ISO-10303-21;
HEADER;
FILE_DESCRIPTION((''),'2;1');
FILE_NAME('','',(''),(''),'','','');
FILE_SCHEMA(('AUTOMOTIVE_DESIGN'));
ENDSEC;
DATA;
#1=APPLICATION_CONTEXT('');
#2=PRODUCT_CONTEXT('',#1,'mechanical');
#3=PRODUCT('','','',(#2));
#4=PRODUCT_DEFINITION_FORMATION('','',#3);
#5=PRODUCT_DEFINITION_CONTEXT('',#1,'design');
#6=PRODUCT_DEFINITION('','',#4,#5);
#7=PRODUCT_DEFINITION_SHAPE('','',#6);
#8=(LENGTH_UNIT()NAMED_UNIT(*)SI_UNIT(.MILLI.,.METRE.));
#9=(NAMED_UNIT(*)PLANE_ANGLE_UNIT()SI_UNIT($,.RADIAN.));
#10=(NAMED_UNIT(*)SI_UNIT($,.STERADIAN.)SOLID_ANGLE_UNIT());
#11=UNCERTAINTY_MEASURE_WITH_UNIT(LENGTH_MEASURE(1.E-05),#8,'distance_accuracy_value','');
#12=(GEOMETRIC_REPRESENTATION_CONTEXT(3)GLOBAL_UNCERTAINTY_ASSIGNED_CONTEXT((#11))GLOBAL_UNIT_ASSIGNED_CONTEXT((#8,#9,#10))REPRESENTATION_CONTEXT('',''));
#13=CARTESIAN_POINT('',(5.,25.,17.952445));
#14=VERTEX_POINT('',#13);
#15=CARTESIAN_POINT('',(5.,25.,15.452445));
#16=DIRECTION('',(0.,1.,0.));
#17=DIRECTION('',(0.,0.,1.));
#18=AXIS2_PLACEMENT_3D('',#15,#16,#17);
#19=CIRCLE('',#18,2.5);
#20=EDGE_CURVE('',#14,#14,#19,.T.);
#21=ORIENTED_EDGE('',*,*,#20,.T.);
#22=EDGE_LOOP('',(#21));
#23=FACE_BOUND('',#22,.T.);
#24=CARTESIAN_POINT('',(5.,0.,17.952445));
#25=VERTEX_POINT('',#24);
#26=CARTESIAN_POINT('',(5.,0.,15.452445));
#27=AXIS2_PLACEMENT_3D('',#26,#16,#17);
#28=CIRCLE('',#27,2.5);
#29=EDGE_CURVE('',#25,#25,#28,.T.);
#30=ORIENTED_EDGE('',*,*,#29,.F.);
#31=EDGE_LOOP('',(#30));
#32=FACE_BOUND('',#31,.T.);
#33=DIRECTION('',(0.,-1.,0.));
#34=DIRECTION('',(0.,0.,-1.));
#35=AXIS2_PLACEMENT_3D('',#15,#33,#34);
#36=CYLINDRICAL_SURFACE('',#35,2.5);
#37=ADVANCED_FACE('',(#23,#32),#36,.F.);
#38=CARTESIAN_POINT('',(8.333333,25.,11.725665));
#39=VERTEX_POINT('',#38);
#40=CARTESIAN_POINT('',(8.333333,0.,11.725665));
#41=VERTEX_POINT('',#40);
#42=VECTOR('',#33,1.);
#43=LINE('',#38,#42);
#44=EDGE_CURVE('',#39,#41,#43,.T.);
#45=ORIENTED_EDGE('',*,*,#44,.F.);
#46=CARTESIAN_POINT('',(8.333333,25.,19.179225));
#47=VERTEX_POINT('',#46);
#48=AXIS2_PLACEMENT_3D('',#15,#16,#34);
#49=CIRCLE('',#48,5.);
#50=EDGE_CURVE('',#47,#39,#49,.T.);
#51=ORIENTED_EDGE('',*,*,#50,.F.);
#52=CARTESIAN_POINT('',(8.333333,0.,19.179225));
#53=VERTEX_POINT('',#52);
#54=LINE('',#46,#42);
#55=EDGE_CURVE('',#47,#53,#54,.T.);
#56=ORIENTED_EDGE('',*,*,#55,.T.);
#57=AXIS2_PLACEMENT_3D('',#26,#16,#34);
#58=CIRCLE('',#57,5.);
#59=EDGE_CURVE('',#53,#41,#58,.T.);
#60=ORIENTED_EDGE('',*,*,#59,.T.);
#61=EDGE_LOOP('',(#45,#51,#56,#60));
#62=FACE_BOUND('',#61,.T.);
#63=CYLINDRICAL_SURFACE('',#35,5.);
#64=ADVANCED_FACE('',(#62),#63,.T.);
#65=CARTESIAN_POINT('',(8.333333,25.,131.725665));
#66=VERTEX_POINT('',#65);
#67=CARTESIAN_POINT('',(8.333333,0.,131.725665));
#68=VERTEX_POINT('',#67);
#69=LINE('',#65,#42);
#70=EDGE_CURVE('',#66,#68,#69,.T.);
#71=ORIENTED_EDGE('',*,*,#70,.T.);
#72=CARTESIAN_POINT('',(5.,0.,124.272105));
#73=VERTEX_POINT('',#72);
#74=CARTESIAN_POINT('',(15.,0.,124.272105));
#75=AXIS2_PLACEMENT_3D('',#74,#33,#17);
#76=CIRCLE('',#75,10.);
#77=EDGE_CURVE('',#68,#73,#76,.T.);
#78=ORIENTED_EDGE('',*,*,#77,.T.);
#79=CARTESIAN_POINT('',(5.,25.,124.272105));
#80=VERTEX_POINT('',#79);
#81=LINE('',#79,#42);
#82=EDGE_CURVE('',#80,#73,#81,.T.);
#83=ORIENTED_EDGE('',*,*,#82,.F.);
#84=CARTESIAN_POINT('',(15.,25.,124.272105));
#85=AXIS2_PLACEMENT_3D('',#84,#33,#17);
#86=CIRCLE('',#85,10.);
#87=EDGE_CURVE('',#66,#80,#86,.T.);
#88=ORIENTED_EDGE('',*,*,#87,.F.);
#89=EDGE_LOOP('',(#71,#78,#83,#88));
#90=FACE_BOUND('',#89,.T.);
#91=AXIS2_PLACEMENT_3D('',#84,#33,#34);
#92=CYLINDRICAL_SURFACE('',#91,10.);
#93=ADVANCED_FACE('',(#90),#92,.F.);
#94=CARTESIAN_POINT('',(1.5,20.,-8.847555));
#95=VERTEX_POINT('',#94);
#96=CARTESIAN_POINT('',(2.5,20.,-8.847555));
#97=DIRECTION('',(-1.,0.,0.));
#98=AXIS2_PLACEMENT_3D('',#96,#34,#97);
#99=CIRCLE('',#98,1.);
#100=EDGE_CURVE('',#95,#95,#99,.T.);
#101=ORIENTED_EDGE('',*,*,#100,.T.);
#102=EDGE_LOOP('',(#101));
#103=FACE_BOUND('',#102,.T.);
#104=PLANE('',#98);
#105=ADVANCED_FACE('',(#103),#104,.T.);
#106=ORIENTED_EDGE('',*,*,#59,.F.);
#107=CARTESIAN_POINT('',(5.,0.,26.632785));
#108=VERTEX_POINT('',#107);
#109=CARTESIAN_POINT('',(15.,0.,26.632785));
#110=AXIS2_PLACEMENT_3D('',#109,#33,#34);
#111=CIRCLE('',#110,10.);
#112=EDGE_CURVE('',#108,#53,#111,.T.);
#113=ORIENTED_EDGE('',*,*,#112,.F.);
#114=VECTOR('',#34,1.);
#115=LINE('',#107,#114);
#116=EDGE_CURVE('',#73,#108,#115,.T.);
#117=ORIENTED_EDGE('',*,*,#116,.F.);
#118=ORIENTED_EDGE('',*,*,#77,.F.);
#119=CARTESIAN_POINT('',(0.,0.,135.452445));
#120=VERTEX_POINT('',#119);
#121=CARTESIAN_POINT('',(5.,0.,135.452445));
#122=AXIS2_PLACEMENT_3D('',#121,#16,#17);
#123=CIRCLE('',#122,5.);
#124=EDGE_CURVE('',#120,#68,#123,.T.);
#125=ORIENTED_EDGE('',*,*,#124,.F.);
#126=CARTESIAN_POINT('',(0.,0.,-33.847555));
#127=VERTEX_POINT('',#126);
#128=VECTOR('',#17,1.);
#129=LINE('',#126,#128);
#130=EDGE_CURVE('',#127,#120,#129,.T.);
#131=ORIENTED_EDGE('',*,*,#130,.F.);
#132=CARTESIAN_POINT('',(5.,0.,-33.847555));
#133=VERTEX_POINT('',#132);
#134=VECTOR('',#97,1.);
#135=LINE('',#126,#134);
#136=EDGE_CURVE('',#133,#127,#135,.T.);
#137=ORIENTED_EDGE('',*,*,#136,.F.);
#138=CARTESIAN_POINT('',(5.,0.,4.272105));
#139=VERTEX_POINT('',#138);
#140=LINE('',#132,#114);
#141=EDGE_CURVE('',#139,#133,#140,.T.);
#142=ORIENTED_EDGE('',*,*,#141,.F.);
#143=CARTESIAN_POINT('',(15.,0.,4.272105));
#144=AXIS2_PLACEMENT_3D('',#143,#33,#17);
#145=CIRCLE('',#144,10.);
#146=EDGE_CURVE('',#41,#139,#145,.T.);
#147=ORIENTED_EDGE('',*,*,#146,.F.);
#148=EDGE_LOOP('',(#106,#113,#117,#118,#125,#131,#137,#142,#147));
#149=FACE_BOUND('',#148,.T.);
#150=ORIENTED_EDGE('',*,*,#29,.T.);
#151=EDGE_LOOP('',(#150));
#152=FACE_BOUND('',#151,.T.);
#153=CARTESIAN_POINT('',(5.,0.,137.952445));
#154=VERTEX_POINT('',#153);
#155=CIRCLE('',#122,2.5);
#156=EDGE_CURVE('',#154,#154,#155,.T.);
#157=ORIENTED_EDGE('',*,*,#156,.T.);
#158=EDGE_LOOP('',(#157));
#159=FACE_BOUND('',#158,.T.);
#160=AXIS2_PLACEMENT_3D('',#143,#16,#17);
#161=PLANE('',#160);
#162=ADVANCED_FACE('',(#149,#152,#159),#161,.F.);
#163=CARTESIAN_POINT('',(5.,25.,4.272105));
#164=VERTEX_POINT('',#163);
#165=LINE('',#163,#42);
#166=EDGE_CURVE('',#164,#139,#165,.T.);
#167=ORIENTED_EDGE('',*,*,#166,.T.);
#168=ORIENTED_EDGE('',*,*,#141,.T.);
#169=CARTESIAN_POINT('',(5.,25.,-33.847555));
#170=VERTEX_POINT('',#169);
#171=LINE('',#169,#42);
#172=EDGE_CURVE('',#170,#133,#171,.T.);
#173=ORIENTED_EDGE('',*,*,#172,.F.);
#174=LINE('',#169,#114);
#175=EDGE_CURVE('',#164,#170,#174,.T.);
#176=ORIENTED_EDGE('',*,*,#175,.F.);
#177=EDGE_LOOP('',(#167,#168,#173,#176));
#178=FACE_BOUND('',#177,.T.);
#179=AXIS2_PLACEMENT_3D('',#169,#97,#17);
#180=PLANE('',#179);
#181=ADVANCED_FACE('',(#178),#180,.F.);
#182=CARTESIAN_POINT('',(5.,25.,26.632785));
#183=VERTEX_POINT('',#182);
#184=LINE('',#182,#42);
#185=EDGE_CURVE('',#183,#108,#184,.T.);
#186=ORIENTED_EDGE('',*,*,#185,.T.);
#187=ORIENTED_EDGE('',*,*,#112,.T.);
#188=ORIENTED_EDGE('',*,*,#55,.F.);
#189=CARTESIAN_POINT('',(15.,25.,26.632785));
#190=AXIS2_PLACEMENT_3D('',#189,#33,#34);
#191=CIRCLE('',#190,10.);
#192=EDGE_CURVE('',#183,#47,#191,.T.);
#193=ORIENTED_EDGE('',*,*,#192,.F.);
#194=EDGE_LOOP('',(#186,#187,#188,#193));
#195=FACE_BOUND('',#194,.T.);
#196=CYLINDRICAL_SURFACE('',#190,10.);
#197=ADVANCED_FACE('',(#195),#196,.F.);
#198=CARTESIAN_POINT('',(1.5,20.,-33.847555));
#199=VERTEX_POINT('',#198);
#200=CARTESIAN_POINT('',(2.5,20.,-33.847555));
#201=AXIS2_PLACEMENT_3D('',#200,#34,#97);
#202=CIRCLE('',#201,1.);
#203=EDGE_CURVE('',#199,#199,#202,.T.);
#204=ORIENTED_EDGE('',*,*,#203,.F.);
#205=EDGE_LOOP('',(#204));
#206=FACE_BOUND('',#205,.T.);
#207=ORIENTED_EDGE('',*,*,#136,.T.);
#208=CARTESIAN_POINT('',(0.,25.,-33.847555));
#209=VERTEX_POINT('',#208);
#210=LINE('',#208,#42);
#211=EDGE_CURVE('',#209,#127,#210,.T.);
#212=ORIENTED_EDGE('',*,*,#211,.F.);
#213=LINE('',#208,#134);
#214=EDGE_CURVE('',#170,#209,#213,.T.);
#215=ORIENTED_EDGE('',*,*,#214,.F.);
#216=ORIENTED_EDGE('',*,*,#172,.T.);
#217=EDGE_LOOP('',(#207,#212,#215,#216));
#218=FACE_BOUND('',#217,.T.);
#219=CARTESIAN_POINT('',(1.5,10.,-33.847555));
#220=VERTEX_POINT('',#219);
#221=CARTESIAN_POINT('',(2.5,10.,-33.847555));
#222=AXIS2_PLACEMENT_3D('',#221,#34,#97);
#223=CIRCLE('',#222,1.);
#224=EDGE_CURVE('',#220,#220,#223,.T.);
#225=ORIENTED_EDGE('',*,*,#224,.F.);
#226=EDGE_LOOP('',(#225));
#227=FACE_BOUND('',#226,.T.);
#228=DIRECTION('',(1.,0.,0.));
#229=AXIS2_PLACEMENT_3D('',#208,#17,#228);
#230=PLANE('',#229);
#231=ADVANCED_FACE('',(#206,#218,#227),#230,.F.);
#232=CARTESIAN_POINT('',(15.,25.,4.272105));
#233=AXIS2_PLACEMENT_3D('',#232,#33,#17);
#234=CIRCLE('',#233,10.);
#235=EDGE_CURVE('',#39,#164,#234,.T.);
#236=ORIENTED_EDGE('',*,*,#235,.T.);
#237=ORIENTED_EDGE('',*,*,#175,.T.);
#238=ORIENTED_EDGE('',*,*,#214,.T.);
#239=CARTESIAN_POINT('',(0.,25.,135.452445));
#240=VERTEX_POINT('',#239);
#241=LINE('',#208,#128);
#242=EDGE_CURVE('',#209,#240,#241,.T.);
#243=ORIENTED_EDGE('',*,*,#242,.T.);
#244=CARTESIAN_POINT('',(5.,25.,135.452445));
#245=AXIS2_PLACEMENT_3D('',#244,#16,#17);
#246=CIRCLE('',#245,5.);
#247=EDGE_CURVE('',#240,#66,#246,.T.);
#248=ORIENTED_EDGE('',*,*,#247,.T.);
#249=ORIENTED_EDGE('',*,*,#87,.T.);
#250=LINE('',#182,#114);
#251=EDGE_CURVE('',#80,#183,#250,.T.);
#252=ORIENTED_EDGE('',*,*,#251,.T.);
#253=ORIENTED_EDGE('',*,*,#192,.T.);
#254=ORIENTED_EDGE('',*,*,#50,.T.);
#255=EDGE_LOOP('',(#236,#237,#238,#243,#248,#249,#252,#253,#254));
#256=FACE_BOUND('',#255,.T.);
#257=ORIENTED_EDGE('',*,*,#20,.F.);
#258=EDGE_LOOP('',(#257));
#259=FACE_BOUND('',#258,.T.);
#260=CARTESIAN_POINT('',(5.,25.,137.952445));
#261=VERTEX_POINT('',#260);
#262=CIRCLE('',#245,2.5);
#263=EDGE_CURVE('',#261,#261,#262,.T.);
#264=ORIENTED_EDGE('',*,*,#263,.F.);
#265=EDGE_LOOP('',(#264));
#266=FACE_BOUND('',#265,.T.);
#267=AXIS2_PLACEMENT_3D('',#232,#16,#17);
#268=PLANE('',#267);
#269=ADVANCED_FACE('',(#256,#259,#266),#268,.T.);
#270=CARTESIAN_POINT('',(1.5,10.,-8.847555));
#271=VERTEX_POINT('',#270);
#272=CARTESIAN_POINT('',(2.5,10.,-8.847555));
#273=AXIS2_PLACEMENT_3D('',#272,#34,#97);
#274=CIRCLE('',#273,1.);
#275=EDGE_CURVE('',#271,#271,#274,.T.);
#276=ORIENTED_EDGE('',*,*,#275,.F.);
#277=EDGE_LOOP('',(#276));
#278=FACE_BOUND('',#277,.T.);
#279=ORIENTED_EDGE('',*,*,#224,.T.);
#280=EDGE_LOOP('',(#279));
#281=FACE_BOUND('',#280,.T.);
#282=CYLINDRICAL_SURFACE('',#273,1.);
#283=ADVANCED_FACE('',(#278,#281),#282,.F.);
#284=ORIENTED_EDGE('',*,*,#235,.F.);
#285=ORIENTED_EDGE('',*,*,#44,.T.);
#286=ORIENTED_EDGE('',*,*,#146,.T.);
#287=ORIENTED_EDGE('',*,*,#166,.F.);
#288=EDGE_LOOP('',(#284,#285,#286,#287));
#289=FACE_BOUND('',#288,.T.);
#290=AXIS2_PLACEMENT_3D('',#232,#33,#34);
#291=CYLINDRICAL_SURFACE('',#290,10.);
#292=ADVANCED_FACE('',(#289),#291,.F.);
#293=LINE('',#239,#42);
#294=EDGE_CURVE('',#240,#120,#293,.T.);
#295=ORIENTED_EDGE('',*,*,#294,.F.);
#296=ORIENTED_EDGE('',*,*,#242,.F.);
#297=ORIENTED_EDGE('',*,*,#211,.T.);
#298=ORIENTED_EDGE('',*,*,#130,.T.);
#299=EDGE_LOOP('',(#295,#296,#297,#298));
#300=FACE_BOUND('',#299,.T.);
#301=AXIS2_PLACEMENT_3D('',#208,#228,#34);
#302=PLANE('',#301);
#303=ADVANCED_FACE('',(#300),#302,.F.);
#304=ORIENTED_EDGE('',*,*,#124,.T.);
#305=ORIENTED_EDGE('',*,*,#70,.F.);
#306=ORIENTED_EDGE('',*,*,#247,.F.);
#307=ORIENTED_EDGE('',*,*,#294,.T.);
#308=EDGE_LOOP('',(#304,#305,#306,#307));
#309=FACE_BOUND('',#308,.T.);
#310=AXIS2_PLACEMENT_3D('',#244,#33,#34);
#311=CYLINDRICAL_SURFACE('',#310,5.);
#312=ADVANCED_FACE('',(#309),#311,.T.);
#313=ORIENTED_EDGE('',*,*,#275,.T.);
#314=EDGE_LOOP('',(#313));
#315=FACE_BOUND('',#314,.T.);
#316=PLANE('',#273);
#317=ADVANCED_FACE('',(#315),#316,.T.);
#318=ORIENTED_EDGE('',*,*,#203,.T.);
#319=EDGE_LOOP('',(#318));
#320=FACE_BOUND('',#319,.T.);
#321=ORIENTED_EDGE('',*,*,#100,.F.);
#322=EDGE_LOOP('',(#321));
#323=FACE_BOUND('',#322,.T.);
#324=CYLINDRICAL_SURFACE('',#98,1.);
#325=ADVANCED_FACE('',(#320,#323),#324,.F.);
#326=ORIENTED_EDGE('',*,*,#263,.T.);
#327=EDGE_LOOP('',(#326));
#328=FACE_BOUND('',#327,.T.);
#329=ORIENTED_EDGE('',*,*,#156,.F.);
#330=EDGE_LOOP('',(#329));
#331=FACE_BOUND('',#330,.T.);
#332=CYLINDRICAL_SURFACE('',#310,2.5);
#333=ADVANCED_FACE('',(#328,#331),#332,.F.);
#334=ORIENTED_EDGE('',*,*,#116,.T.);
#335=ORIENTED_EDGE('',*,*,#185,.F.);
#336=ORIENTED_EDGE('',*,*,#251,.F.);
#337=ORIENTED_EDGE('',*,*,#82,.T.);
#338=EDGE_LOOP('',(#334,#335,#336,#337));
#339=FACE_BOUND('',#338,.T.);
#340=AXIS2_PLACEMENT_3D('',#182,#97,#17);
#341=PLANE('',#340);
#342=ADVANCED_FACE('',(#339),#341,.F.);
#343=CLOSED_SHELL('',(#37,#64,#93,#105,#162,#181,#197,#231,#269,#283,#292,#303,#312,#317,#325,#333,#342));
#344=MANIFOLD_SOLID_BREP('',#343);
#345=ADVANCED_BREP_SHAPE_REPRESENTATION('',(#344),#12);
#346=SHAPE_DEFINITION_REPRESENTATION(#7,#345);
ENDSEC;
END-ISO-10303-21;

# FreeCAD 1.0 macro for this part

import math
import FreeCAD as App
import Part
import Sketcher
from FreeCAD import Vector

doc = App.newDocument("Part")
body = doc.addObject("PartDesign::Body", "Body")

sketch1 = doc.addObject("Sketcher::SketchObject", "Sketch")
body.addObject(sketch1)
sketch1.AttachmentSupport = (doc.XZ_Plane, [""])
sketch1.MapMode = "FlatFace"
sketch1.addGeometry(Part.LineSegment(Vector(0, -33.8, 0), Vector(0, 135.5, 0)), False)
sketch1.addGeometry(Part.ArcOfCircle(Part.Circle(Vector(5, 135.5, 0), Vector(0, 0, 1), 5), math.radians(-48), math.radians(180)), False)
sketch1.addGeometry(Part.ArcOfCircle(Part.Circle(Vector(15, 124.3, 0), Vector(0, 0, 1), 10), math.radians(132), math.radians(180)), False)
sketch1.addGeometry(Part.LineSegment(Vector(5, 124.3, 0), Vector(5, 26.6, 0)), False)
sketch1.addGeometry(Part.ArcOfCircle(Part.Circle(Vector(15, 26.6, 0), Vector(0, 0, 1), 10), math.radians(180), math.radians(228)), False)
sketch1.addGeometry(Part.ArcOfCircle(Part.Circle(Vector(5, 15.5, 0), Vector(0, 0, 1), 5), math.radians(-48), math.radians(48)), False)
sketch1.addGeometry(Part.ArcOfCircle(Part.Circle(Vector(15, 4.3, 0), Vector(0, 0, 1), 10), math.radians(132), math.radians(180)), False)
sketch1.addGeometry(Part.LineSegment(Vector(5, 4.3, 0), Vector(5, -33.8, 0)), False)
sketch1.addGeometry(Part.LineSegment(Vector(5, -33.8, 0), Vector(0, -33.8, 0)), False)
sketch1.addGeometry(Part.Circle(Vector(5, 135.5, 0), Vector(0, 0, 1), 2.5), False)
sketch1.addGeometry(Part.Circle(Vector(5, 15.5, 0), Vector(0, 0, 1), 2.5), False)
sketch1.addConstraint(Sketcher.Constraint("Tangent", 0, 2, 1, 2))
sketch1.addConstraint(Sketcher.Constraint("Tangent", 1, 1, 2, 1))
sketch1.addConstraint(Sketcher.Constraint("Tangent", 2, 2, 3, 1))
sketch1.addConstraint(Sketcher.Constraint("Tangent", 3, 2, 4, 1))
sketch1.addConstraint(Sketcher.Constraint("Tangent", 4, 2, 5, 2))
sketch1.addConstraint(Sketcher.Constraint("Tangent", 5, 1, 6, 1))
sketch1.addConstraint(Sketcher.Constraint("Tangent", 6, 2, 7, 1))
sketch1.addConstraint(Sketcher.Constraint("Coincident", 7, 2, 8, 1))
sketch1.addConstraint(Sketcher.Constraint("Coincident", 8, 2, 0, 1))
sketch1.addConstraint(Sketcher.Constraint("Vertical", 0))
sketch1.addConstraint(Sketcher.Constraint("Vertical", 3))
sketch1.addConstraint(Sketcher.Constraint("Vertical", 7))
sketch1.addConstraint(Sketcher.Constraint("Horizontal", 8))
sketch1.addConstraint(Sketcher.Constraint("Coincident", 9, 3, 1, 3))
sketch1.addConstraint(Sketcher.Constraint("Coincident", 10, 3, 5, 3))
sketch1.addConstraint(Sketcher.Constraint("Equal", 2, 4))
sketch1.addConstraint(Sketcher.Constraint("Equal", 1, 5))
sketch1.addConstraint(Sketcher.Constraint("Equal", 4, 6))
sketch1.addConstraint(Sketcher.Constraint("Equal", 9, 10))
sketch1.addConstraint(Sketcher.Constraint("PointOnObject", 0, 2, -2))
sketch1.addConstraint(Sketcher.Constraint("Vertical", 1, 3, 5, 3))
sketch1.addConstraint(Sketcher.Constraint("Vertical", 4, 3, 6, 3))
sketch1.addConstraint(Sketcher.Constraint("Vertical", 10, 3, 2, 2))
sketch1.addConstraint(Sketcher.Constraint("Diameter", 9, 5.0))
sketch1.addConstraint(Sketcher.Constraint("Radius", 1, 5.0))
sketch1.addConstraint(Sketcher.Constraint("Radius", 2, 10.0))
sketch1.addConstraint(Sketcher.Constraint("DistanceY", 0, 1, 0, 2, 169.3))
sketch1.addConstraint(Sketcher.Constraint("DistanceY", 5, 3, 1, 3, 120.0))
sketch1.addConstraint(Sketcher.Constraint("DistanceY", -1, 1, 1, 3, 135.452445))
pad1 = doc.addObject("PartDesign::Pad", "Pad")
body.addObject(pad1)
pad1.Profile = sketch1
pad1.Length = 25
pad1.Reversed = True

sketch2 = doc.addObject("Sketcher::SketchObject", "Sketch001")
body.addObject(sketch2)
sketch2.AttachmentSupport = (doc.XY_Plane, [""])
sketch2.MapMode = "FlatFace"
sketch2.AttachmentOffset = App.Placement(Vector(0, 0, -33.847555), App.Rotation())
sketch2.addGeometry(Part.Circle(Vector(2.5, 10, 0), Vector(0, 0, 1), 1), False)
sketch2.addGeometry(Part.Circle(Vector(2.5, 20, 0), Vector(0, 0, 1), 1), False)
sketch2.addConstraint(Sketcher.Constraint("Equal", 0, 1))
sketch2.addConstraint(Sketcher.Constraint("Vertical", 0, 3, 1, 3))
sketch2.addConstraint(Sketcher.Constraint("Diameter", 0, 2.0))
sketch2.addConstraint(Sketcher.Constraint("DistanceY", -1, 1, 0, 3, 10.0))
sketch2.addConstraint(Sketcher.Constraint("DistanceY", -1, 1, 1, 3, 20.0))
sketch2.addConstraint(Sketcher.Constraint("DistanceX", -1, 1, 0, 3, 2.5))
pocket1 = doc.addObject("PartDesign::Pocket", "Pocket")
body.addObject(pocket1)
pocket1.Profile = sketch2
pocket1.Length = 25
pocket1.Reversed = True

doc.recompute()
